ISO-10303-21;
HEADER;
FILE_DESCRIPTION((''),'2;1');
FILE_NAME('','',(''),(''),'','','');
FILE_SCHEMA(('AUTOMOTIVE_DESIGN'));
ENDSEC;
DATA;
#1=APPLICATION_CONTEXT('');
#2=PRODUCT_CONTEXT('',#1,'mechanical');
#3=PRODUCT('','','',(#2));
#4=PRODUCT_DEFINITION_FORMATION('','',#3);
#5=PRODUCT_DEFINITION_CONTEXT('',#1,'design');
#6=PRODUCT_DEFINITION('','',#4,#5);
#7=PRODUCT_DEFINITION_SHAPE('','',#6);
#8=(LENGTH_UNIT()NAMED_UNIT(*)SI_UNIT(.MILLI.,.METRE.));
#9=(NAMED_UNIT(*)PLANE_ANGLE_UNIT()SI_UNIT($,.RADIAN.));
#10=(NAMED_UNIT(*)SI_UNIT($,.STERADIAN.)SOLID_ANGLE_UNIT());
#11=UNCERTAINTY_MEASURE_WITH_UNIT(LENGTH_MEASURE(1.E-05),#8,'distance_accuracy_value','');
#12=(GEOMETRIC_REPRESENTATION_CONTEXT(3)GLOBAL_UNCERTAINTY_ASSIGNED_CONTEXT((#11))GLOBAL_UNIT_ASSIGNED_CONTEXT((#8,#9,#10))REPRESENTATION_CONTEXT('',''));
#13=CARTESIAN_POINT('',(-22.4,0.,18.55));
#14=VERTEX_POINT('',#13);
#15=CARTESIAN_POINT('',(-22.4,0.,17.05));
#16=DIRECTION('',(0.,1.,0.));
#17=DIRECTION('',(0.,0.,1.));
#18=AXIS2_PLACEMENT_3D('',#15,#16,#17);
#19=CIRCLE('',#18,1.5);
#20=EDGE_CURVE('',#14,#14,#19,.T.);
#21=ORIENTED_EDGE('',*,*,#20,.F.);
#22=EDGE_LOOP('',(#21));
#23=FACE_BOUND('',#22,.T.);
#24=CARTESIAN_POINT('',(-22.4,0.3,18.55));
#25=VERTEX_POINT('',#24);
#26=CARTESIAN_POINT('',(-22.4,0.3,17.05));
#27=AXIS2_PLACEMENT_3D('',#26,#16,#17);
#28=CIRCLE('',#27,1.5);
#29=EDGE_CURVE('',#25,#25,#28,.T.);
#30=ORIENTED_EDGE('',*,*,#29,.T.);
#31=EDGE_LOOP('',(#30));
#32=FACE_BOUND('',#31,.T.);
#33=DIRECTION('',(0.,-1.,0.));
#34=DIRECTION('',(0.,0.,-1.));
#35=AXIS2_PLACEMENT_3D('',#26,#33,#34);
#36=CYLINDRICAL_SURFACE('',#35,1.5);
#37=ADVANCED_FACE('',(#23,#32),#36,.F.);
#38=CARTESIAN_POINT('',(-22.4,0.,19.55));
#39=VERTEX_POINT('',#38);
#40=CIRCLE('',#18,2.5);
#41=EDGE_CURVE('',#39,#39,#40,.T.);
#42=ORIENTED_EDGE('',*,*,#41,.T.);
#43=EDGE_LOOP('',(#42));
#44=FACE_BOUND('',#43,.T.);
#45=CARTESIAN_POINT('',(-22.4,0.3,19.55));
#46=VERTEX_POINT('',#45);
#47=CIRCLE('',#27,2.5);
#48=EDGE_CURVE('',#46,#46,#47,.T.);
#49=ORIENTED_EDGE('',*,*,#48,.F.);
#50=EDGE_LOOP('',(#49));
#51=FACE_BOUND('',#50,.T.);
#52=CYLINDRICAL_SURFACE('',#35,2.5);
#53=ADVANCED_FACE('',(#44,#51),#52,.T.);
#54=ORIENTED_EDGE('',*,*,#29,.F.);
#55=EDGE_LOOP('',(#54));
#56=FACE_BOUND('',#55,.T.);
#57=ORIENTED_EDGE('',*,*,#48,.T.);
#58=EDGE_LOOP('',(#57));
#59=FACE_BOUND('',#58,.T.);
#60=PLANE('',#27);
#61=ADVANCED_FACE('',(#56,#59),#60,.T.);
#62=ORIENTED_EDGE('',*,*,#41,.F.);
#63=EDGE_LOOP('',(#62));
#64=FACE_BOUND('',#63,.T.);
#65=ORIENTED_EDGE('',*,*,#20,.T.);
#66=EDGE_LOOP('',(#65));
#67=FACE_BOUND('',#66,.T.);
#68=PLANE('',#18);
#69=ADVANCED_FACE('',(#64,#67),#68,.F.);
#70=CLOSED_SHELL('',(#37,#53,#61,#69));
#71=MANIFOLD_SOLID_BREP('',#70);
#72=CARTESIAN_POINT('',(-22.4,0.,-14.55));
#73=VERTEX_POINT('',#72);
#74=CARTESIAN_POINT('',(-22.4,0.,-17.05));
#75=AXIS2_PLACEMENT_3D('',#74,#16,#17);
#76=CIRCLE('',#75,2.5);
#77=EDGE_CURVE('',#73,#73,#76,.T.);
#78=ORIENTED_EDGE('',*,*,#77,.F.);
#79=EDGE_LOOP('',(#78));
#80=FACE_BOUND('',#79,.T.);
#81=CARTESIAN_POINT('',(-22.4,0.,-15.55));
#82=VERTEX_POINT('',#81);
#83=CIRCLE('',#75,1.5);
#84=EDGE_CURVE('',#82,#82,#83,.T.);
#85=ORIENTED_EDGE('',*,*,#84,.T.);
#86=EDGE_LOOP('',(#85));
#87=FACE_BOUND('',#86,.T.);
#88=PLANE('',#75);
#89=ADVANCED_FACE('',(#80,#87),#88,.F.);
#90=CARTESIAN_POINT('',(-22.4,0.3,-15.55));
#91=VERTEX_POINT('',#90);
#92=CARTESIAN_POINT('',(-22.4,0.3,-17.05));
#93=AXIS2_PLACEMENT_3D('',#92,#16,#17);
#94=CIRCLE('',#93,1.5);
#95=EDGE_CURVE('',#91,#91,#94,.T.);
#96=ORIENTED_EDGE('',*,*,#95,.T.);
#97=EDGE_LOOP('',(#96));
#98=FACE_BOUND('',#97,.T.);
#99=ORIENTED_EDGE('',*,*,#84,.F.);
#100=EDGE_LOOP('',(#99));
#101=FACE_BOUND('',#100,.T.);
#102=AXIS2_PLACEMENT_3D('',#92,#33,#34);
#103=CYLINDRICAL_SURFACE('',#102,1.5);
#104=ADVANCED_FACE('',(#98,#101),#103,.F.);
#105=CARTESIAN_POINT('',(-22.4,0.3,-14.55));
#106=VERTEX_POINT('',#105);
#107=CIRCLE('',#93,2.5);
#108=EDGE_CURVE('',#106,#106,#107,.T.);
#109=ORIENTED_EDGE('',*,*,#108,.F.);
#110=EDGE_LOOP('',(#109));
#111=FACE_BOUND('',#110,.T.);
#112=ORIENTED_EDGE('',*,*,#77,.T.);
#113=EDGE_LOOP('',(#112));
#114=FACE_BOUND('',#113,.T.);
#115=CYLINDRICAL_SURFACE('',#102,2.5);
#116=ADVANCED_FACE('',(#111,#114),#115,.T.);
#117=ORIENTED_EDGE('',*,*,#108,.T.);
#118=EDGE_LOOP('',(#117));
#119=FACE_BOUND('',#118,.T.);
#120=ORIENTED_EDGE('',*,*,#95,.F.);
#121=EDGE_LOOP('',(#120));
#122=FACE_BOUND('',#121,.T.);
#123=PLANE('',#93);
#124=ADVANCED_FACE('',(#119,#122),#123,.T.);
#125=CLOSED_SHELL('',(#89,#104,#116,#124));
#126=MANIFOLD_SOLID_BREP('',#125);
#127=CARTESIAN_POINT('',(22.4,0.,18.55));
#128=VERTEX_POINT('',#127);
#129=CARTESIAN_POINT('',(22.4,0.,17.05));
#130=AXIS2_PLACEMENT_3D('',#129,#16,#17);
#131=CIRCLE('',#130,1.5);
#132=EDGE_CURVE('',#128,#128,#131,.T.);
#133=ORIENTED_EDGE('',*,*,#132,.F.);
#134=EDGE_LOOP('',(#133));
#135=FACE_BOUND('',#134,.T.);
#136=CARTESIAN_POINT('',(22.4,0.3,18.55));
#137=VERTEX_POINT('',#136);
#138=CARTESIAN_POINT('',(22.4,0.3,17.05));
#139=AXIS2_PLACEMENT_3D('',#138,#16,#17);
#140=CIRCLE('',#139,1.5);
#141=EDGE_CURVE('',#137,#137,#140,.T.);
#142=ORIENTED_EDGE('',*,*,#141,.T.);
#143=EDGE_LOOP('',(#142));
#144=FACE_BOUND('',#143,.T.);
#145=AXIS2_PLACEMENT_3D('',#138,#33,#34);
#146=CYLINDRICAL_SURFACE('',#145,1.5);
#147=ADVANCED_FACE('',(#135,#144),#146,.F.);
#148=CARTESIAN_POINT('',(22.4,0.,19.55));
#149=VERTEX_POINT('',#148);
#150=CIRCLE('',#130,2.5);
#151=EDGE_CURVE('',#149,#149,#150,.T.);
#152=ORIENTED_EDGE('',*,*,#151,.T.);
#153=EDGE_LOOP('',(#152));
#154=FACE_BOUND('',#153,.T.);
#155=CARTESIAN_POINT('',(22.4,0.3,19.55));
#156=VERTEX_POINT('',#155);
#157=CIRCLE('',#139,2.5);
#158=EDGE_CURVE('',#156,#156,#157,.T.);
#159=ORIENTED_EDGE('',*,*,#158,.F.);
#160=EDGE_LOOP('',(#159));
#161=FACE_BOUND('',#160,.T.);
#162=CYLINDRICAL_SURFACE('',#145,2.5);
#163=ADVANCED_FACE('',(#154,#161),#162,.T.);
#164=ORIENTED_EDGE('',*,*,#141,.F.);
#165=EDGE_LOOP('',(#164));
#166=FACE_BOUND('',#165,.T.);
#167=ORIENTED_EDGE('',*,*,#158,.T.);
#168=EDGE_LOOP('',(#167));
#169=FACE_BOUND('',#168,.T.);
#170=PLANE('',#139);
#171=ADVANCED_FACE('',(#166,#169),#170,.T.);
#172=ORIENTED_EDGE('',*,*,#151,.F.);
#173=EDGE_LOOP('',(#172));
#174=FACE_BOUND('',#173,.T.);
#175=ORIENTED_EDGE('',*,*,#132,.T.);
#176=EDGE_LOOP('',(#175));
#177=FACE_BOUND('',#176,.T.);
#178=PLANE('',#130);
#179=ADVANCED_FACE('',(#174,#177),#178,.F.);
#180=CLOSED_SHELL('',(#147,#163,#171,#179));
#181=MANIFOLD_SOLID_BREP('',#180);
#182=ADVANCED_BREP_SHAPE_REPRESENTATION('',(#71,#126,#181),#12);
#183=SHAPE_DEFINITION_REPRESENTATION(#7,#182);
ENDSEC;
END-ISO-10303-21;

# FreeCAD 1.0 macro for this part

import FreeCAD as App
import Part
import Sketcher
from FreeCAD import Vector

doc = App.newDocument("Part")
body = doc.addObject("PartDesign::Body", "Body")

# Sketch on XZ plane
sketch1 = body.newObject("Sketcher::SketchObject", "Sketch")
sketch1.AttachmentSupport = (doc.getObject("XZ_Plane"), [""])
sketch1.MapMode = "FlatFace"
sketch1.addGeometry(Part.Circle(Vector(-22.4, -17.1, 0), Vector(0, 0, 1), 2.5), False)
sketch1.addGeometry(Part.Circle(Vector(-22.4, -17.1, 0), Vector(0, 0, 1), 1.5), False)
sketch1.addConstraint(Sketcher.Constraint("Coincident", 1, 3, 0, 3))
sketch1.addConstraint(Sketcher.Constraint("Diameter", 0, 5.0))
sketch1.addConstraint(Sketcher.Constraint("Diameter", 1, 3.0))
sketch1.addConstraint(Sketcher.Constraint("DistanceX", 0, 3, -1, 1, 22.4))
sketch1.addConstraint(Sketcher.Constraint("DistanceY", 0, 3, -1, 1, 17.05))
pad1 = body.newObject("PartDesign::Pad", "Pad")
pad1.Profile = sketch1
pad1.Length = 0.3
pad1.Reversed = True
body2 = doc.addObject("PartDesign::Body", "Body001")

# Sketch on XZ plane
sketch2 = body2.newObject("Sketcher::SketchObject", "Sketch001")
sketch2.AttachmentSupport = (doc.getObject("XZ_Plane001"), [""])
sketch2.MapMode = "FlatFace"
sketch2.addGeometry(Part.Circle(Vector(-22.4, 17.1, 0), Vector(0, 0, 1), 2.5), False)
sketch2.addGeometry(Part.Circle(Vector(-22.4, 17.1, 0), Vector(0, 0, 1), 1.5), False)
sketch2.addConstraint(Sketcher.Constraint("Coincident", 1, 3, 0, 3))
sketch2.addConstraint(Sketcher.Constraint("Diameter", 0, 5.0))
sketch2.addConstraint(Sketcher.Constraint("Diameter", 1, 3.0))
sketch2.addConstraint(Sketcher.Constraint("DistanceX", 0, 3, -1, 1, 22.4))
sketch2.addConstraint(Sketcher.Constraint("DistanceY", -1, 1, 0, 3, 17.05))
pad2 = body2.newObject("PartDesign::Pad", "Pad001")
pad2.Profile = sketch2
pad2.Length = 0.3
pad2.Reversed = True
body3 = doc.addObject("PartDesign::Body", "Body002")

# Sketch on XZ plane
sketch3 = body3.newObject("Sketcher::SketchObject", "Sketch002")
sketch3.AttachmentSupport = (doc.getObject("XZ_Plane002"), [""])
sketch3.MapMode = "FlatFace"
sketch3.addGeometry(Part.Circle(Vector(22.4, 17.1, 0), Vector(0, 0, 1), 2.5), False)
sketch3.addGeometry(Part.Circle(Vector(22.4, 17.1, 0), Vector(0, 0, 1), 1.5), False)
sketch3.addConstraint(Sketcher.Constraint("Coincident", 1, 3, 0, 3))
sketch3.addConstraint(Sketcher.Constraint("Diameter", 0, 5.0))
sketch3.addConstraint(Sketcher.Constraint("Diameter", 1, 3.0))
sketch3.addConstraint(Sketcher.Constraint("DistanceX", -1, 1, 0, 3, 22.4))
sketch3.addConstraint(Sketcher.Constraint("DistanceY", -1, 1, 0, 3, 17.05))
pad3 = body3.newObject("PartDesign::Pad", "Pad002")
pad3.Profile = sketch3
pad3.Length = 0.3
pad3.Reversed = True

doc.recompute()
